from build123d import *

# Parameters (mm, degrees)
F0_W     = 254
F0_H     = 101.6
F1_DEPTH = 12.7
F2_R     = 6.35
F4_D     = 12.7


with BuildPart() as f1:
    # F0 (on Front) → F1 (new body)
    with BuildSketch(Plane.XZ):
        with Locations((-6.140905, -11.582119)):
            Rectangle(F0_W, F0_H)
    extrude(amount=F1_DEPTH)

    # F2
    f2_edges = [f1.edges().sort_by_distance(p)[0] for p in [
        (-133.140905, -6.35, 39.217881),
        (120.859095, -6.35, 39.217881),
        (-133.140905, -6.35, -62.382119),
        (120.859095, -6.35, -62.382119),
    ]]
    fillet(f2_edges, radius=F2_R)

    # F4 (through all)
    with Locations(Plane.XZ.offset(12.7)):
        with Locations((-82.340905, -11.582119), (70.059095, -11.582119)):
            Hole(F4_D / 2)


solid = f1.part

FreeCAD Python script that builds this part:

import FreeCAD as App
import Part
import Sketcher
Q = App.Units.Quantity


def edges_at(feature, points):
    """Names of the edges that pass closest to the given points."""
    edges = feature.Shape.Edges
    near = lambda p: min(range(len(edges)), key=lambda i: edges[i].distToShape(Part.Vertex(*p))[0])
    return sorted({f"Edge{near(p) + 1}" for p in points})

doc = App.newDocument("Part")
params = doc.addObject("Spreadsheet::Sheet", "Params")
for row, (alias, value) in enumerate([
    ("sketch1_width", "10 in"),
    ("sketch1_height", "4 in"),
    ("pad1_length", "0.5 in"),
    ("fillet_radius", "0.25 in"),
    ("sketch2_diameter", "0.5 in"),
    ("hole_diameter", "0.5 in"),
], start=1):
    params.set(f"A{row}", alias)
    params.set(f"B{row}", "=" + value)
    params.setAlias(f"B{row}", alias)

body = doc.addObject("PartDesign::Body", "Body")

# Sketch on XZ plane
sketch1 = body.newObject("Sketcher::SketchObject", "Sketch")
sketch1.AttachmentSupport = (doc.getObject("XZ_Plane"), [""])
sketch1.MapMode = "FlatFace"
sketch1.addGeometry([
    Part.LineSegment(App.Vector(-133, 39, 0), App.Vector(-133, -62, 0)),
    Part.LineSegment(App.Vector(-133, -62, 0), App.Vector(121, -62, 0)),
    Part.LineSegment(App.Vector(121, -62, 0), App.Vector(121, 39, 0)),
    Part.LineSegment(App.Vector(121, 39, 0), App.Vector(-133, 39, 0)),
], False)
sketch1.addConstraint([
    Sketcher.Constraint("Coincident", 0, 2, 1, 1),
    Sketcher.Constraint("Coincident", 1, 2, 2, 1),
    Sketcher.Constraint("Coincident", 2, 2, 3, 1),
    Sketcher.Constraint("Coincident", 3, 2, 0, 1),
    Sketcher.Constraint("Vertical", 0),
    Sketcher.Constraint("Horizontal", 1),
    Sketcher.Constraint("Vertical", 2),
    Sketcher.Constraint("Horizontal", 3),
    Sketcher.Constraint("DistanceX", 1, 1, 1, 2, Q("10 in")),
    Sketcher.Constraint("DistanceY", 0, 2, 0, 1, Q("4 in")),
    Sketcher.Constraint("DistanceY", 0, 2, -1, 1, 62.382119),
    Sketcher.Constraint("DistanceX", 0, 2, -1, 1, 133.140905),
])
sketch1.setExpression("Constraints[8]", "Params.sketch1_width")
sketch1.setExpression("Constraints[9]", "Params.sketch1_height")
pad1 = body.newObject("PartDesign::Pad", "Pad")
pad1.Profile = sketch1
pad1.setExpression("Length", "Params.pad1_length")
doc.recompute()

fillet = body.newObject("PartDesign::Fillet", "Fillet")
fillet.Base = (pad1, edges_at(pad1, [
    (-133.141, -6.35, 39.218),
    (120.859, -6.35, 39.218),
    (-133.141, -6.35, -62.382),
    (120.859, -6.35, -62.382),
]))
fillet.setExpression("Radius", "Params.fillet_radius")

# Sketch on XZ plane
sketch2 = body.newObject("Sketcher::SketchObject", "Sketch001")
sketch2.AttachmentSupport = (doc.getObject("XZ_Plane"), [""])
sketch2.MapMode = "FlatFace"
sketch2.AttachmentOffset = App.Placement(App.Vector(0, 0, 0.5 * 25.4), App.Rotation())
sketch2.addGeometry([
    Part.Circle(App.Vector(-82, -12, 0), App.Vector(0, 0, 1), 6),
    Part.Circle(App.Vector(70, -12, 0), App.Vector(0, 0, 1), 6),
], False)
sketch2.addConstraint([
    Sketcher.Constraint("Equal", 0, 1),
    Sketcher.Constraint("Horizontal", 0, 3, 1, 3),
    Sketcher.Constraint("Diameter", 0, Q("0.5 in")),
    Sketcher.Constraint("DistanceX", 0, 3, 1, 3, Q("6 in")),
    Sketcher.Constraint("DistanceY", 0, 3, -1, 1, 11.582119),
    Sketcher.Constraint("DistanceX", 0, 3, -1, 1, 82.340905),
])
sketch2.setExpression("Constraints[2]", "Params.sketch2_diameter")
doc.recompute()
hole = body.newObject("PartDesign::Hole", "Hole")
hole.Profile = sketch2
hole.ThreadType = "None"
hole.setExpression("Diameter", "Params.hole_diameter")
hole.DepthType = "ThroughAll"

doc.recompute()
